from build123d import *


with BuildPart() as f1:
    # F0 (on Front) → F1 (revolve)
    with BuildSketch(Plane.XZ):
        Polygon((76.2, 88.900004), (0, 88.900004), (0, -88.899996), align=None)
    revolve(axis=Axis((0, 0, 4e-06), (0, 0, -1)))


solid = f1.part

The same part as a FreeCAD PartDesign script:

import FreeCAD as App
import Part
import Sketcher

V = App.Vector
Q = App.Units.Quantity

doc = App.newDocument("Part")
body = doc.addObject("PartDesign::Body", "Body")

# Sketch on XZ plane
sketch1 = body.newObject("Sketcher::SketchObject", "Sketch")
sketch1.AttachmentSupport = (doc.getObject("XZ_Plane"), [""])
sketch1.MapMode = "FlatFace"
sketch1.addGeometry([
    Part.LineSegment(V(76, 89, 0), V(0, 89, 0)),
    Part.LineSegment(V(0, 89, 0), V(0, -89, 0)),
    Part.LineSegment(V(0, -89, 0), V(76, 89, 0)),
], False)
sketch1.addConstraint([
    Sketcher.Constraint("Coincident", 0, 2, 1, 1),
    Sketcher.Constraint("Coincident", 1, 2, 2, 1),
    Sketcher.Constraint("Coincident", 2, 2, 0, 1),
    Sketcher.Constraint("Horizontal", 0),
    Sketcher.Constraint("Vertical", 1),
    Sketcher.Constraint("Symmetric", 0, 2, 1, 2, -1, 1),
    Sketcher.Constraint("DistanceX", 0, 2, 0, 1, Q("3 in")),
    Sketcher.Constraint("DistanceY", 1, 2, 1, 1, Q("7 in")),
])
revolution = body.newObject("PartDesign::Revolution", "Revolution")
revolution.Profile = sketch1
revolution.ReferenceAxis = (sketch1, ["V_Axis"])
revolution.Angle = 360

doc.recompute()
